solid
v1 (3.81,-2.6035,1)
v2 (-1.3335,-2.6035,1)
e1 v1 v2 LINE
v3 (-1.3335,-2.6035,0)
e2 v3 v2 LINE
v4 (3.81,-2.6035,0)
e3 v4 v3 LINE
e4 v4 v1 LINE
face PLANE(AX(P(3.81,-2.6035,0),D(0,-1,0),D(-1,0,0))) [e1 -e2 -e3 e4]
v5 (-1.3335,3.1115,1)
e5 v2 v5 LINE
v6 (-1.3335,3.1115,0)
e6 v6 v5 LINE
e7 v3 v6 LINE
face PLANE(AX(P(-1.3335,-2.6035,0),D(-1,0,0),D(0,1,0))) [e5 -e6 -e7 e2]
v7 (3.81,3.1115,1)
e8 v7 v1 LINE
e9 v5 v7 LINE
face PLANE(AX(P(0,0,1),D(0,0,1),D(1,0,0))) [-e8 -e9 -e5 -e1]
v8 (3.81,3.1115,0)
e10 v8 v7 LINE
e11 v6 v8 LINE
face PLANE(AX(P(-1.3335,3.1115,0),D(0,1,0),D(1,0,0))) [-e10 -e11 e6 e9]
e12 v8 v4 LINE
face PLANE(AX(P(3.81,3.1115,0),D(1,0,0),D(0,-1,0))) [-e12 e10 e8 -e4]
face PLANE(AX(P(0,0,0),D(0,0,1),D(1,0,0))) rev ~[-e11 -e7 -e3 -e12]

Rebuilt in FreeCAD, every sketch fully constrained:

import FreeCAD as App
import Part
import Sketcher


def add_polygon(sketch, points):
    """Adds a closed chain of lines whose ends are joined by coincident constraints."""
    first, n = sketch.GeometryCount, len(points)
    for a, b in zip(points, points[1:] + points[:1]):
        sketch.addGeometry(Part.LineSegment(App.Vector(*a, 0), App.Vector(*b, 0)), False)
    for i in range(n):
        sketch.addConstraint(Sketcher.Constraint("Coincident", first + i, 2, first + (i + 1) % n, 1))

doc = App.newDocument("Part")
params = doc.addObject("Spreadsheet::Sheet", "Params")
for row, (alias, value) in enumerate([
    ("pad1_length", "1 mm"),
], start=1):
    params.set(f"A{row}", alias)
    params.set(f"B{row}", "=" + value)
    params.setAlias(f"B{row}", alias)

body = doc.addObject("PartDesign::Body", "Body")

# Sketch on XY plane
sketch1 = body.newObject("Sketcher::SketchObject", "Sketch")
sketch1.AttachmentSupport = (doc.getObject("XY_Plane"), [""])
sketch1.MapMode = "FlatFace"
add_polygon(sketch1, [(4, 3), (-1, 3), (-1, -3), (4, -3)])  # lines 0-3
sketch1.addConstraint([
    Sketcher.Constraint("Horizontal", 0),
    Sketcher.Constraint("Vertical", 1),
    Sketcher.Constraint("Horizontal", 2),
    Sketcher.Constraint("Vertical", 3),
    Sketcher.Constraint("DistanceY", 1, 2, 1, 1, 5.715),
    Sketcher.Constraint("DistanceX", -1, 1, 2, 2, 3.81),
    Sketcher.Constraint("DistanceX", 0, 2, 0, 1, 5.1435),
    Sketcher.Constraint("DistanceY", -1, 1, 0, 2, 3.1115),
])
pad1 = body.newObject("PartDesign::Pad", "Pad")
pad1.Profile = sketch1
pad1.setExpression("Length", "Params.pad1_length")

doc.recompute()
